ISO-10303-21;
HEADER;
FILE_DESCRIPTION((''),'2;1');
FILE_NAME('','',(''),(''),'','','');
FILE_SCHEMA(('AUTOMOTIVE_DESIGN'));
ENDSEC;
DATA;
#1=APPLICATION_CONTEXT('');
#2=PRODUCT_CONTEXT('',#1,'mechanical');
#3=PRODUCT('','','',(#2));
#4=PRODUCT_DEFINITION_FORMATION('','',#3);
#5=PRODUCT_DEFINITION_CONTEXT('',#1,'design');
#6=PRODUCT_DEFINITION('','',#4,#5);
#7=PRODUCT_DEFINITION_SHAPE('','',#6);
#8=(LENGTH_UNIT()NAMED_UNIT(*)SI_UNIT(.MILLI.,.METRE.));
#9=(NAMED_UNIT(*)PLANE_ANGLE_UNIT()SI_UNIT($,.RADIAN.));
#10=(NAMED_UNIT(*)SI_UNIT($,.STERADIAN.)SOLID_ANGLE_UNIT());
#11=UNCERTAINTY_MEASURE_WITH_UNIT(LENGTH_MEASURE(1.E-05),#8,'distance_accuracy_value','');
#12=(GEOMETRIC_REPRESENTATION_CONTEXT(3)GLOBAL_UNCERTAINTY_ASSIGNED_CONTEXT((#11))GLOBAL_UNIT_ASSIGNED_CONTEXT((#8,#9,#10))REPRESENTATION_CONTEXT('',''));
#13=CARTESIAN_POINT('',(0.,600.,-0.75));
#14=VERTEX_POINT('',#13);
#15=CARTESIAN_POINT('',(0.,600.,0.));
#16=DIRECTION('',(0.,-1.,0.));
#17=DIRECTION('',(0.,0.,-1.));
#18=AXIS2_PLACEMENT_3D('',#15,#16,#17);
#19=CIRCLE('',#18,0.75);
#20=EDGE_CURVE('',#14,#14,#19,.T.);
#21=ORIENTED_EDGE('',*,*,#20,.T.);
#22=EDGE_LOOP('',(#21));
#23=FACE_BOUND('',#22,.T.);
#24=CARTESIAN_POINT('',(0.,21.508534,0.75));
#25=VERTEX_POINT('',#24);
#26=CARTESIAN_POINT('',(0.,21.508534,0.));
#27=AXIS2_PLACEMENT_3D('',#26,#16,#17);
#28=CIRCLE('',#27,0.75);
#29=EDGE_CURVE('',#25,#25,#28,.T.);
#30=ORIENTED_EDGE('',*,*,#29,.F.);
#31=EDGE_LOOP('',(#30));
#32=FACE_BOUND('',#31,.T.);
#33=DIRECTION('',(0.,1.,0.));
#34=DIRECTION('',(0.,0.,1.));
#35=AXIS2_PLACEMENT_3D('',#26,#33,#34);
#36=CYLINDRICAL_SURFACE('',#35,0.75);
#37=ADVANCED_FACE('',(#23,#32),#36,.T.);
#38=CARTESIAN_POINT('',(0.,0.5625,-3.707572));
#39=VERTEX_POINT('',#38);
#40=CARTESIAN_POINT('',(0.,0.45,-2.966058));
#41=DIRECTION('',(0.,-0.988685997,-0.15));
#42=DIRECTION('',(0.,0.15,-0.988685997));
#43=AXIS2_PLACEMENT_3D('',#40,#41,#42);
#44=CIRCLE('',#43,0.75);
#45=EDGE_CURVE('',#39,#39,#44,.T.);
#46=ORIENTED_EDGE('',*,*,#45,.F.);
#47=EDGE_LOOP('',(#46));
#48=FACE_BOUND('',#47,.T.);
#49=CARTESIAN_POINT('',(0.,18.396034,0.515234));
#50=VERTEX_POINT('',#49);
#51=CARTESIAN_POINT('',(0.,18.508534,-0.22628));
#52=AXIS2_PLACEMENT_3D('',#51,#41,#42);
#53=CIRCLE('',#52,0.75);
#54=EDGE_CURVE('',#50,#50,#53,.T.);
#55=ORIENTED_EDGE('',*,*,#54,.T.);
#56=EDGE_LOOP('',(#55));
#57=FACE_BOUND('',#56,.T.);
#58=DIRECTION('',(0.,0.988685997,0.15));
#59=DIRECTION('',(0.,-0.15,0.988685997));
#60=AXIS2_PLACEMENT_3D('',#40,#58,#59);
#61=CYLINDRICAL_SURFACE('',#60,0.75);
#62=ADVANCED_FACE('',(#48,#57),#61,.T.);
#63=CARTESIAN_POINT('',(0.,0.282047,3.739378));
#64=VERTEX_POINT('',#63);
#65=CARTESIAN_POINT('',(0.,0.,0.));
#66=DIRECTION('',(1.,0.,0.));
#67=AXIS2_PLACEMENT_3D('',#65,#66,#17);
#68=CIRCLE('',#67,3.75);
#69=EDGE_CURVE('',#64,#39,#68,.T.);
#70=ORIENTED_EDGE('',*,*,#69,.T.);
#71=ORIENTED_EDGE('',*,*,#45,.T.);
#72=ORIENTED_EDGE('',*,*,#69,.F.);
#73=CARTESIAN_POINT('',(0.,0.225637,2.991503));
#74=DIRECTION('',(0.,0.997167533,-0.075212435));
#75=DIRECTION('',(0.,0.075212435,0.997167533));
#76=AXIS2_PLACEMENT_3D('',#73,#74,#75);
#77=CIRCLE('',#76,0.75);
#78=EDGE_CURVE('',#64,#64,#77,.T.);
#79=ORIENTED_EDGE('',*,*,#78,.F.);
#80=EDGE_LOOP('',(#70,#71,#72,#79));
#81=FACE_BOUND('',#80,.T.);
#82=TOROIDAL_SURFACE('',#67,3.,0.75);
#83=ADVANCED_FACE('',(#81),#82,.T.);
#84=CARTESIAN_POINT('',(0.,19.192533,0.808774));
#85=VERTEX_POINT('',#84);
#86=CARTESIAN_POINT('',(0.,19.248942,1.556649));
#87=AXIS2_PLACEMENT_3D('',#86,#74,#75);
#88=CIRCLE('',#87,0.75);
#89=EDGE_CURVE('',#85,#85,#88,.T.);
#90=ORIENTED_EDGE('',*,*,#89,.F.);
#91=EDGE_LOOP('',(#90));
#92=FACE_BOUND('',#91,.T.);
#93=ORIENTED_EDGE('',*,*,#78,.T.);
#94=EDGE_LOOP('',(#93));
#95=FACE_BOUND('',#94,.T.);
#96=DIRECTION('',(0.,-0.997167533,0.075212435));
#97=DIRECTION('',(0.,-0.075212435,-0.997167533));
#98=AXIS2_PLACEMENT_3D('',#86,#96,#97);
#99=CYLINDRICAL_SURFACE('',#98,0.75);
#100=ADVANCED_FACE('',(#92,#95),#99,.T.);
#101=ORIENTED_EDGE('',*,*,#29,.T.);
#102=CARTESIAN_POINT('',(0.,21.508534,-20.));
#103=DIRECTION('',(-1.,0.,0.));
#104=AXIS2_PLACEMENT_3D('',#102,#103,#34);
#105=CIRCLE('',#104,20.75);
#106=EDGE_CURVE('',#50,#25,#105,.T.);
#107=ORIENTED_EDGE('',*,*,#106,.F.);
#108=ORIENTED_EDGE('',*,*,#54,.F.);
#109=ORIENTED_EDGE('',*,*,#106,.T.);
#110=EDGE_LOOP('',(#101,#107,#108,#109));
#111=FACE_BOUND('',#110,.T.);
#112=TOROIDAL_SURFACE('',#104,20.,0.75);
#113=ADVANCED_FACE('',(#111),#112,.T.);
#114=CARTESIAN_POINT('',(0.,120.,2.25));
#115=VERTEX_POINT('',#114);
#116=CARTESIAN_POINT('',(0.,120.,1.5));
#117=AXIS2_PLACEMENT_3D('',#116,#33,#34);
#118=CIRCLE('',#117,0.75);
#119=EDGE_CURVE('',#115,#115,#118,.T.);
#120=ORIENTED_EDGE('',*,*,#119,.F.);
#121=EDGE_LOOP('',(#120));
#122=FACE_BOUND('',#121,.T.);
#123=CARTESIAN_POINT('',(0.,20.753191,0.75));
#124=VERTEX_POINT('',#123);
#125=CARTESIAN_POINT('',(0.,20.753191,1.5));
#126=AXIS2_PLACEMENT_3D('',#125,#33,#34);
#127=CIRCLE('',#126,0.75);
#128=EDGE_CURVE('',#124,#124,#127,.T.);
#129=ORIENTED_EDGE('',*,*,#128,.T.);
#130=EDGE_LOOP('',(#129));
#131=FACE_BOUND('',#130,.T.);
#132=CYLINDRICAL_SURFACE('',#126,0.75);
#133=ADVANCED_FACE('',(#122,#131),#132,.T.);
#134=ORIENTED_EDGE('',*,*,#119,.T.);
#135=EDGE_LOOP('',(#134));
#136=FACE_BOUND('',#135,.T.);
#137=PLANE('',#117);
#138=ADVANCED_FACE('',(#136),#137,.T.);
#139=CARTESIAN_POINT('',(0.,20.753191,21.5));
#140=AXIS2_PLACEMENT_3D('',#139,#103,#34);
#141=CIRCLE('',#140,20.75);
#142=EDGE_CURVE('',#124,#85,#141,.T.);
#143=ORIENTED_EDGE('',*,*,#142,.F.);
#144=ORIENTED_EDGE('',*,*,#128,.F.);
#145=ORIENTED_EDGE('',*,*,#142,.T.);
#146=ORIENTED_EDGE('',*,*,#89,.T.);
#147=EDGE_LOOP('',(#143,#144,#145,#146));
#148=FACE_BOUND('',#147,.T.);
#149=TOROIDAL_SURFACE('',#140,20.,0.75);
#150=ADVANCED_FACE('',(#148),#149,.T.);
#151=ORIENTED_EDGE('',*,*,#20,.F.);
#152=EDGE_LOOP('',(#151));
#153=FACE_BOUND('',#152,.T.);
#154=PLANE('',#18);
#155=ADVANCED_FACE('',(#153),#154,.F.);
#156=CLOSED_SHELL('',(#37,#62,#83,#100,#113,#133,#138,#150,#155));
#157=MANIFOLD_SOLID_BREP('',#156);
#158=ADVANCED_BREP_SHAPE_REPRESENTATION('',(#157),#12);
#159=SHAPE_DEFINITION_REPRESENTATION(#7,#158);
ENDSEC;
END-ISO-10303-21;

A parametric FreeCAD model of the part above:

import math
import FreeCAD as App
import Part
import Sketcher
from FreeCAD import Vector
Q = App.Units.Quantity

doc = App.newDocument("Part")
body = doc.addObject("PartDesign::Body", "Body")

# Sketch on XZ plane
sketch1 = body.newObject("Sketcher::SketchObject", "Sketch")
sketch1.AttachmentSupport = (doc.getObject("XZ_Plane"), [""])
sketch1.MapMode = "FlatFace"
sketch1.AttachmentOffset = App.Placement(Vector(0, 0, -120), App.Rotation())
sketch1.addGeometry(Part.Circle(Vector(0, 1.5, 0), Vector(0, 0, 1), 0.8), False)
sketch1.addConstraint([
    Sketcher.Constraint("PointOnObject", 0, 3, -2),
    Sketcher.Constraint("Diameter", 0, Q("1.5 mm")),
    Sketcher.Constraint("DistanceY", -1, 1, 0, 3, Q("1.5 mm")),
])

# Sketch on YZ plane
sketch2 = body.newObject("Sketcher::SketchObject", "Sketch001")
sketch2.AttachmentSupport = (doc.getObject("YZ_Plane"), [""])
sketch2.MapMode = "FlatFace"
sketch2.addGeometry([
    Part.LineSegment(Vector(600, 0, 0), Vector(21.5, 0, 0)),  # 0
    Part.ArcOfCircle(Part.Circle(Vector(21.5, -20, 0), Vector(0, 0, 1), 20), math.radians(90), math.radians(98.63)),  # 1
    Part.LineSegment(Vector(18.5, -0.2, 0), Vector(0.5, -3, 0)),  # 2
    Part.ArcOfCircle(Part.Circle(Vector(0, 0, 0), Vector(0, 0, 1), 3), math.radians(86), math.radians(279)),  # 3
    Part.LineSegment(Vector(0.2, 3, 0), Vector(19.2, 1.6, 0)),  # 4
    Part.ArcOfCircle(Part.Circle(Vector(20.8, 21.5, 0), Vector(0, 0, 1), 20), math.radians(-94.31), math.radians(-90)),  # 5
    Part.LineSegment(Vector(20.8, 1.5, 0), Vector(120, 1.5, 0)),  # 6
], False)
sketch2.addConstraint([
    Sketcher.Constraint("Tangent", 0, 2, 1, 1),
    Sketcher.Constraint("Tangent", 1, 2, 2, 1),
    Sketcher.Constraint("Tangent", 2, 2, 3, 2),
    Sketcher.Constraint("Tangent", 3, 1, 4, 1),
    Sketcher.Constraint("Tangent", 4, 2, 5, 1),
    Sketcher.Constraint("Tangent", 5, 2, 6, 1),
    Sketcher.Constraint("Horizontal", 0),
    Sketcher.Constraint("Horizontal", 6),
    Sketcher.Constraint("Coincident", 3, 3, -1, 1),
    Sketcher.Constraint("Equal", 1, 5),
    Sketcher.Constraint("PointOnObject", 0, 1, -1),
    Sketcher.Constraint("Radius", 1, Q("20 mm")),
    Sketcher.Constraint("Radius", 3, Q("3 mm")),
    Sketcher.Constraint("DistanceX", -1, 1, 0, 1, Q("600 mm")),
    Sketcher.Constraint("DistanceX", -1, 1, 6, 2, Q("120 mm")),
    Sketcher.Constraint("DistanceX", 1, 2, 0, 2, Q("3 mm")),
    Sketcher.Constraint("DistanceY", -1, 1, 5, 3, Q("21.5 mm")),
    Sketcher.Constraint("DistanceX", 6, 1, 6, 2, Q("99.246809 mm")),
])
doc.recompute()

additivepipe = body.newObject("PartDesign::AdditivePipe", "AdditivePipe")
additivepipe.Profile = sketch1
additivepipe.Spine = (sketch2, ["Edge1", "Edge2", "Edge3", "Edge4", "Edge5", "Edge6", "Edge7"])

doc.recompute()
